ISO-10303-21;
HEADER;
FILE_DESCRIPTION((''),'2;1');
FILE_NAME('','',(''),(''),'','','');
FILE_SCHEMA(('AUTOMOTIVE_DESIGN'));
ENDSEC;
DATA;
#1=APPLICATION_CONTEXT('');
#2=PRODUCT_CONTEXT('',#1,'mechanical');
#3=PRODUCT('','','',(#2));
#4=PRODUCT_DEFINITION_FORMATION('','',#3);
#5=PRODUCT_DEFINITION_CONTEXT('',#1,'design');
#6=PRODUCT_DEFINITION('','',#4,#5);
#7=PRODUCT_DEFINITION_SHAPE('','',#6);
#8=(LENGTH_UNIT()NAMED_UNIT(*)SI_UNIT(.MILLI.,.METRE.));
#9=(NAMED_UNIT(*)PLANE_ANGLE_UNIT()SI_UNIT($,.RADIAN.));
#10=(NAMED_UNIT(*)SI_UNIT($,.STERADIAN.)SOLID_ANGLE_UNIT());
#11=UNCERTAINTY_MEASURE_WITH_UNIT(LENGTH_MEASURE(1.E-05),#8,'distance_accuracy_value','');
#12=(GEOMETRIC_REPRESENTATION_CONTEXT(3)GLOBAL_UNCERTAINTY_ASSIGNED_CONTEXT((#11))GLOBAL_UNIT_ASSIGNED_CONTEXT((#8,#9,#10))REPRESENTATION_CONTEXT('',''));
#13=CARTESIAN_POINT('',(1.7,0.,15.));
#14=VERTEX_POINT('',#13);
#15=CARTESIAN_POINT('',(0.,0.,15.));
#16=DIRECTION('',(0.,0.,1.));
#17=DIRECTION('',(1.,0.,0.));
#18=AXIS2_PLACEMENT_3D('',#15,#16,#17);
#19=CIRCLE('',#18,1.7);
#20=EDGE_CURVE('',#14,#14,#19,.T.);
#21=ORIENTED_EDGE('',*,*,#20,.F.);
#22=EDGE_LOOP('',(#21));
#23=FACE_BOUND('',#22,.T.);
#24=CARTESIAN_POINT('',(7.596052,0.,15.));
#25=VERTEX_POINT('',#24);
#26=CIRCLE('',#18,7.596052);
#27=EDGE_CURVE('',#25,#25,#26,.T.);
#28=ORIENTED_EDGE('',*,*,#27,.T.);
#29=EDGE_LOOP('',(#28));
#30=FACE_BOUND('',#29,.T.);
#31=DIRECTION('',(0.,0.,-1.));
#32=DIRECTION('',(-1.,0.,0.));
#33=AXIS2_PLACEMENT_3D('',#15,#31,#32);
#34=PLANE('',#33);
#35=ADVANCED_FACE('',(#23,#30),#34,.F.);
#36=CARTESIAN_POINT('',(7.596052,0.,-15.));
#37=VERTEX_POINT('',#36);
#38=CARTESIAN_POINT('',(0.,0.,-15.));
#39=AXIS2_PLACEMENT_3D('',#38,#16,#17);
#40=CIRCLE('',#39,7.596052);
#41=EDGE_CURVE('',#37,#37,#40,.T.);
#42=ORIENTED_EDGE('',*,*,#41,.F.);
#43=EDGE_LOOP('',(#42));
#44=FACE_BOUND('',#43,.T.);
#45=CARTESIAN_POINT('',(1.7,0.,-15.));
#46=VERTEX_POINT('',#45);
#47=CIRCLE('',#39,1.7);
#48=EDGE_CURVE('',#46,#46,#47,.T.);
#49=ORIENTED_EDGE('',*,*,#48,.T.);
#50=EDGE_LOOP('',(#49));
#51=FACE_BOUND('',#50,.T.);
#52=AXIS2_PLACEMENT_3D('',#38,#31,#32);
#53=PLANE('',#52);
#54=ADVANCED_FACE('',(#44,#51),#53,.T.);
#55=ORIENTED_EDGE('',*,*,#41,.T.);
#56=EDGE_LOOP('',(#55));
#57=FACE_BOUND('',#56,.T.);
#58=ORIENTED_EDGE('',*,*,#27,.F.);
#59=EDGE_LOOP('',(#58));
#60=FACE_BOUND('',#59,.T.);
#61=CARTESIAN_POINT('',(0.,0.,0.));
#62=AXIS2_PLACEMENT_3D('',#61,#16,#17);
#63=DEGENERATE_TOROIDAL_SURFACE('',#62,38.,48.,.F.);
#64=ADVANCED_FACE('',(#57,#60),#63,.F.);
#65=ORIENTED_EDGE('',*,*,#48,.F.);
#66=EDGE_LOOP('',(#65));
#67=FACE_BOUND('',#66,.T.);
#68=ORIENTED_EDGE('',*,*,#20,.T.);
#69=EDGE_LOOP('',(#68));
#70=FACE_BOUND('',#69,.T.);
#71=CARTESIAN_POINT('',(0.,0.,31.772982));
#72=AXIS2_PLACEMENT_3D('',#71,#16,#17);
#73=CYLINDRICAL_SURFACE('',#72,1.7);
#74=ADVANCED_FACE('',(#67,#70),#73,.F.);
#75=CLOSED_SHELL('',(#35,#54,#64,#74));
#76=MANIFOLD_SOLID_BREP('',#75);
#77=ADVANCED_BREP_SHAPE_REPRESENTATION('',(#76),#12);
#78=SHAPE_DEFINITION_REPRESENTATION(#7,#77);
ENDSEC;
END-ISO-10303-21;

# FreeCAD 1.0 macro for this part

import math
import FreeCAD as App
import Part
import Sketcher

V = App.Vector
Q = App.Units.Quantity

doc = App.newDocument("Part")
body = doc.addObject("PartDesign::Body", "Body")

sketch1 = body.newObject("Sketcher::SketchObject", "Sketch")
sketch1.AttachmentSupport = (doc.getObject("YZ_Plane"), [""])
sketch1.MapMode = "FlatFace"
sketch1.addGeometry([
    Part.ArcOfCircle(Part.Circle(V(-38, 0, 0), V(0, 0, 1), 48), math.radians(-18), math.radians(18)),
    Part.LineSegment(V(8, 15, 0), V(2, 15, 0)),
    Part.LineSegment(V(2, 15, 0), V(2, -15, 0)),
    Part.LineSegment(V(2, -15, 0), V(8, -15, 0)),
], False)
sketch1.addConstraint([
    Sketcher.Constraint("Coincident", 0, 2, 1, 1),
    Sketcher.Constraint("Coincident", 1, 2, 2, 1),
    Sketcher.Constraint("Coincident", 2, 2, 3, 1),
    Sketcher.Constraint("Coincident", 3, 2, 0, 1),
    Sketcher.Constraint("Horizontal", 1),
    Sketcher.Constraint("Vertical", 2),
    Sketcher.Constraint("Horizontal", 3),
    Sketcher.Constraint("Symmetric", 0, 2, 3, 2, -1),
    Sketcher.Constraint("Radius", 0, Q("48 mm")),
    Sketcher.Constraint("DistanceY", 2, 2, 2, 1, Q("30 mm")),
    Sketcher.Constraint("DistanceX", 0, 3, -1, 1, Q("38 mm")),
    Sketcher.Constraint("DistanceX", -1, 1, 1, 2, Q("1.7 mm")),
])
revolution = body.newObject("PartDesign::Revolution", "Revolution")
revolution.Profile = sketch1
revolution.ReferenceAxis = (sketch1, ["V_Axis"])
revolution.Angle = 360

doc.recompute()
